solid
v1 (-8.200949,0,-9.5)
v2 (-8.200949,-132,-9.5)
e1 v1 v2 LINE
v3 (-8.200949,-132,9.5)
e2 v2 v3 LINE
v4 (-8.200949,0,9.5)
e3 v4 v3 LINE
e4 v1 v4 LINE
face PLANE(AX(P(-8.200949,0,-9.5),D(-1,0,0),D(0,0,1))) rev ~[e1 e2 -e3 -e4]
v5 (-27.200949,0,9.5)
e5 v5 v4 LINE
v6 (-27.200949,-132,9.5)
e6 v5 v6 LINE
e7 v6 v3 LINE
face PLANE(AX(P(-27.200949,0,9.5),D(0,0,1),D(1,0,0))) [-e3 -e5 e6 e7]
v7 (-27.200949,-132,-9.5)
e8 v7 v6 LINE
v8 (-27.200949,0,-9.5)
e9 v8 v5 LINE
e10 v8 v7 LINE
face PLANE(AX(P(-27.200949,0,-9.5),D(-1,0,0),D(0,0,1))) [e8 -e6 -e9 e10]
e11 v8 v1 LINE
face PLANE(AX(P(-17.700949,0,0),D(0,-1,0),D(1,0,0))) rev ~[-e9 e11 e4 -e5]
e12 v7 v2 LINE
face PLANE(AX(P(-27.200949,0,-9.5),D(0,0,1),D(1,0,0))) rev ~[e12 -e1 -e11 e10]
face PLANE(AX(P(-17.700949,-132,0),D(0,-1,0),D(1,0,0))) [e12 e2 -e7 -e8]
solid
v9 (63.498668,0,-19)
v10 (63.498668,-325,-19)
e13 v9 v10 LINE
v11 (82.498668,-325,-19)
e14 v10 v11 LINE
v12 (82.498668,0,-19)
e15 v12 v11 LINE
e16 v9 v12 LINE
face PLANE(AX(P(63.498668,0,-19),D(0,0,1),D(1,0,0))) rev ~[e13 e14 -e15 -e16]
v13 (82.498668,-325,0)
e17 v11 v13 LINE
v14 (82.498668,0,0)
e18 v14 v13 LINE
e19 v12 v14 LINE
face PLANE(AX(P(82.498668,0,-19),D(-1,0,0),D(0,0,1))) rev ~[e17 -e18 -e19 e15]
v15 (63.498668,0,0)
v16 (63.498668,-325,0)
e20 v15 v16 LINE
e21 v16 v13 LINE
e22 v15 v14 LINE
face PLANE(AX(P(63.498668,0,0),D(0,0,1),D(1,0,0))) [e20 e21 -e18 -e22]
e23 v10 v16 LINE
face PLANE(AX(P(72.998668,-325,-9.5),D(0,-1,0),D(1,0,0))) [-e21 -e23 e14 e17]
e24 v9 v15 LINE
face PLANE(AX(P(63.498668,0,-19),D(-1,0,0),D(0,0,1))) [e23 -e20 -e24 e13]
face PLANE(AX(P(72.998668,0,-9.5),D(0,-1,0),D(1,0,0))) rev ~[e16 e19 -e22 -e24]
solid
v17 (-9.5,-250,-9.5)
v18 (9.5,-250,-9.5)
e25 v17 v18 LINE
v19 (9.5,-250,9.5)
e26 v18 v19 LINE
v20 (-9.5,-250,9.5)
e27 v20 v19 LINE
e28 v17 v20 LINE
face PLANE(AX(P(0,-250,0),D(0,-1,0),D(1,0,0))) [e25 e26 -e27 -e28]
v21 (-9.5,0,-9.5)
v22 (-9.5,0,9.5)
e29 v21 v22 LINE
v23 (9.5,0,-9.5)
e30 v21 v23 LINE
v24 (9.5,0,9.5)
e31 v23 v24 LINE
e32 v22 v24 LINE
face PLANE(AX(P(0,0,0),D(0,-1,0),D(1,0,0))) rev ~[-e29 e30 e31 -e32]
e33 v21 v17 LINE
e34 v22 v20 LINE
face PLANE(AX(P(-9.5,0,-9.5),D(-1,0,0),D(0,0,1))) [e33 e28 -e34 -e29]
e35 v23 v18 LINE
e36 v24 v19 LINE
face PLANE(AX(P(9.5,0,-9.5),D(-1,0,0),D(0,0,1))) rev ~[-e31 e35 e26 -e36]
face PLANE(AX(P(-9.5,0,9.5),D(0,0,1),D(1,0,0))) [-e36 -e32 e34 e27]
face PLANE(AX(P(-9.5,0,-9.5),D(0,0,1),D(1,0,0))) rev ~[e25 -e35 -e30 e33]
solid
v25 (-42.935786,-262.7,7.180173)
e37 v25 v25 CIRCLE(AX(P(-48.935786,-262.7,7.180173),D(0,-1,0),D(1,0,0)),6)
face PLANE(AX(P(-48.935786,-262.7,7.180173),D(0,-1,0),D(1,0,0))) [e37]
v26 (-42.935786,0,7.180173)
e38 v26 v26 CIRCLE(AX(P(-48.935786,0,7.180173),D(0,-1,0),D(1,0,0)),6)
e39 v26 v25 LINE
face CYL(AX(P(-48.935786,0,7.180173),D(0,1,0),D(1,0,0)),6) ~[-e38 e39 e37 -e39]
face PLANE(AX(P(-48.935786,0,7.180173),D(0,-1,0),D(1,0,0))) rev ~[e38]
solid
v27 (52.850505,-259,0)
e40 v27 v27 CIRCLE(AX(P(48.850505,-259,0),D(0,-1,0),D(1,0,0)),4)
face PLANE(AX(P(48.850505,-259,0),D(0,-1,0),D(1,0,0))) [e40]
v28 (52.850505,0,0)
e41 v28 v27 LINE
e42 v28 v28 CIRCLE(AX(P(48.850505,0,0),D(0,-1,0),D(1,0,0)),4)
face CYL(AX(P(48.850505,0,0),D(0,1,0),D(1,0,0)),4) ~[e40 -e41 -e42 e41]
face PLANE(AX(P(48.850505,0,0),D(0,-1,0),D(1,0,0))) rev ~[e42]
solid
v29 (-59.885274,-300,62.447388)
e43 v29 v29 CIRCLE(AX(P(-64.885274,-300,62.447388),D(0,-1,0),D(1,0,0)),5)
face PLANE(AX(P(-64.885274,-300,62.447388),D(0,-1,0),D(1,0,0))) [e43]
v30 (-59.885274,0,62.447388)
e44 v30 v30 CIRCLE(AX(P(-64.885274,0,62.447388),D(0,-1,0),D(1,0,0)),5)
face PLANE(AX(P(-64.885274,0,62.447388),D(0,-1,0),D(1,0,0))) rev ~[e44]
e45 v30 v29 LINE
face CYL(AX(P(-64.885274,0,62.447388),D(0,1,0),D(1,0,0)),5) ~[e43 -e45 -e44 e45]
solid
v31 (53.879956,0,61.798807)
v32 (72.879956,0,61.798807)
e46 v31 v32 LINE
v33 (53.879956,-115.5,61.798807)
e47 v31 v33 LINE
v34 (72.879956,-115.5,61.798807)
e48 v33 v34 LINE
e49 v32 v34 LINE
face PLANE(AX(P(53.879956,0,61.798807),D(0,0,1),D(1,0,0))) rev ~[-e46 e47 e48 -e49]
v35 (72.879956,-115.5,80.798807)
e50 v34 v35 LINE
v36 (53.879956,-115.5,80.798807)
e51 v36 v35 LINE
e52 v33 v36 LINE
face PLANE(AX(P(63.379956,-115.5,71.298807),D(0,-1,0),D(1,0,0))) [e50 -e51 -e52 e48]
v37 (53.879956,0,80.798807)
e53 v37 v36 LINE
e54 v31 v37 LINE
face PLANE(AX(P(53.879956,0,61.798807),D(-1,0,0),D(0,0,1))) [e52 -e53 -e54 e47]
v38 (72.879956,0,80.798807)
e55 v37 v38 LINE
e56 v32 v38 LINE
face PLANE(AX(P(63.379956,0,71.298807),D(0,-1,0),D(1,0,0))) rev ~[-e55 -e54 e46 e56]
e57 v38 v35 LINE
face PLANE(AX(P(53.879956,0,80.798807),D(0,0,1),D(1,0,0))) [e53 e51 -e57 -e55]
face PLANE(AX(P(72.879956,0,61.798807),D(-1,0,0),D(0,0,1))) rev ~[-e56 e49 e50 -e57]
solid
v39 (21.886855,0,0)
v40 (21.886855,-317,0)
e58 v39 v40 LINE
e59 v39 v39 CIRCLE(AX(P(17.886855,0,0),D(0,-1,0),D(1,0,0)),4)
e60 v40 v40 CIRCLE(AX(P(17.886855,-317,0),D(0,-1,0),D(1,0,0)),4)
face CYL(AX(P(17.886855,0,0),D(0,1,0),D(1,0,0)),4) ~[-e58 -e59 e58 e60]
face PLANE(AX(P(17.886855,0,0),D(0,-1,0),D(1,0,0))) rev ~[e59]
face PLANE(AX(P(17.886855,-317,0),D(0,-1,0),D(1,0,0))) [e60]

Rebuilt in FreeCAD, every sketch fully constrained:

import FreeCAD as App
import Part
import Sketcher

V = App.Vector
Q = App.Units.Quantity


def add_polygon(sketch, points):
    """Adds a closed chain of lines whose ends are joined by coincident constraints."""
    first, n = sketch.GeometryCount, len(points)
    for a, b in zip(points, points[1:] + points[:1]):
        sketch.addGeometry(Part.LineSegment(App.Vector(*a, 0), App.Vector(*b, 0)), False)
    for i in range(n):
        sketch.addConstraint(Sketcher.Constraint("Coincident", first + i, 2, first + (i + 1) % n, 1))

doc = App.newDocument("Part")
body = doc.addObject("PartDesign::Body", "Body")

# Sketch on XZ plane
sketch1 = body.newObject("Sketcher::SketchObject", "Sketch")
sketch1.AttachmentSupport = (doc.getObject("XZ_Plane"), [""])
sketch1.MapMode = "FlatFace"
add_polygon(sketch1, [(-9.5, 9.5), (-9.5, -9.5), (9.5, -9.5), (9.5, 9.5)])  # lines 0-3
sketch1.addConstraint([
    Sketcher.Constraint("Vertical", 0),
    Sketcher.Constraint("Horizontal", 1),
    Sketcher.Constraint("Vertical", 2),
    Sketcher.Constraint("Horizontal", 3),
    Sketcher.Constraint("Symmetric", 0, 2, 2, 2, -1, 1),
    Sketcher.Constraint("Equal", 3, 0),
    Sketcher.Constraint("DistanceX", 1, 1, 1, 2, Q("19 mm")),
])
pad1 = body.newObject("PartDesign::Pad", "Pad")
pad1.Profile = sketch1
pad1.Length = 250
body2 = doc.addObject("PartDesign::Body", "Body001")

# Sketch on XZ plane
sketch2 = body2.newObject("Sketcher::SketchObject", "Sketch001")
sketch2.AttachmentSupport = (doc.getObject("XZ_Plane001"), [""])
sketch2.MapMode = "FlatFace"
add_polygon(sketch2, [(-27.200949, 9.5), (-27.200949, -9.5), (-8.200949, -9.5), (-8.200949, 9.5)])  # lines 0-3
sketch2.addConstraint([
    Sketcher.Constraint("Vertical", 0),
    Sketcher.Constraint("Horizontal", 1),
    Sketcher.Constraint("Vertical", 2),
    Sketcher.Constraint("Horizontal", 3),
    Sketcher.Constraint("Equal", 3, 0),
    Sketcher.Constraint("DistanceX", 1, 1, 1, 2, Q("19 mm")),
    Sketcher.Constraint("DistanceY", 0, 2, -1, 1, Q("9.5 mm")),
    Sketcher.Constraint("DistanceX", 0, 2, -1, 1, Q("27.200949 mm")),
])
pad2 = body2.newObject("PartDesign::Pad", "Pad001")
pad2.Profile = sketch2
pad2.Length = 132
body3 = doc.addObject("PartDesign::Body", "Body002")

# Sketch on XZ plane
sketch3 = body3.newObject("Sketcher::SketchObject", "Sketch002")
sketch3.AttachmentSupport = (doc.getObject("XZ_Plane002"), [""])
sketch3.MapMode = "FlatFace"
sketch3.addGeometry(Part.Circle(V(-48.935786, 7.180173, 0), V(0, 0, 1), 6), False)
sketch3.addConstraint([
    Sketcher.Constraint("Diameter", 0, Q("12 mm")),
    Sketcher.Constraint("DistanceX", 0, 3, -1, 1, Q("48.935786 mm")),
    Sketcher.Constraint("DistanceY", -1, 1, 0, 3, Q("7.180173 mm")),
])
pad3 = body3.newObject("PartDesign::Pad", "Pad002")
pad3.Profile = sketch3
pad3.Length = 262.7
body4 = doc.addObject("PartDesign::Body", "Body003")

# Sketch on XZ plane
sketch4 = body4.newObject("Sketcher::SketchObject", "Sketch003")
sketch4.AttachmentSupport = (doc.getObject("XZ_Plane003"), [""])
sketch4.MapMode = "FlatFace"
sketch4.addGeometry(Part.Circle(V(48.850505, 0, 0), V(0, 0, 1), 4), False)
sketch4.addConstraint([
    Sketcher.Constraint("PointOnObject", 0, 3, -1),
    Sketcher.Constraint("Diameter", 0, Q("8 mm")),
    Sketcher.Constraint("DistanceX", -1, 1, 0, 3, Q("48.850505 mm")),
])
pad4 = body4.newObject("PartDesign::Pad", "Pad003")
pad4.Profile = sketch4
pad4.Length = 259
body5 = doc.addObject("PartDesign::Body", "Body004")

# Sketch on XZ plane
sketch5 = body5.newObject("Sketcher::SketchObject", "Sketch004")
sketch5.AttachmentSupport = (doc.getObject("XZ_Plane004"), [""])
sketch5.MapMode = "FlatFace"
add_polygon(sketch5, [(63.498668, 0), (63.498668, -19), (82.498668, -19), (82.498668, 0)])  # lines 0-3
sketch5.addConstraint([
    Sketcher.Constraint("Vertical", 0),
    Sketcher.Constraint("Horizontal", 1),
    Sketcher.Constraint("Vertical", 2),
    Sketcher.Constraint("Horizontal", 3),
    Sketcher.Constraint("PointOnObject", 2, 2, -1),
    Sketcher.Constraint("Equal", 3, 0),
    Sketcher.Constraint("DistanceX", 1, 1, 1, 2, Q("19 mm")),
    Sketcher.Constraint("DistanceX", -1, 1, 0, 2, Q("63.498668 mm")),
])
pad5 = body5.newObject("PartDesign::Pad", "Pad004")
pad5.Profile = sketch5
pad5.Length = 325
body6 = doc.addObject("PartDesign::Body", "Body005")

# Sketch on XZ plane
sketch6 = body6.newObject("Sketcher::SketchObject", "Sketch005")
sketch6.AttachmentSupport = (doc.getObject("XZ_Plane005"), [""])
sketch6.MapMode = "FlatFace"
sketch6.addGeometry(Part.Circle(V(17.886855, 0, 0), V(0, 0, 1), 4), False)
sketch6.addConstraint([
    Sketcher.Constraint("PointOnObject", 0, 3, -1),
    Sketcher.Constraint("Diameter", 0, Q("8 mm")),
    Sketcher.Constraint("DistanceX", -1, 1, 0, 3, Q("17.886855 mm")),
])
pad6 = body6.newObject("PartDesign::Pad", "Pad005")
pad6.Profile = sketch6
pad6.Length = 317
body7 = doc.addObject("PartDesign::Body", "Body006")

# Sketch on XZ plane
sketch7 = body7.newObject("Sketcher::SketchObject", "Sketch006")
sketch7.AttachmentSupport = (doc.getObject("XZ_Plane006"), [""])
sketch7.MapMode = "FlatFace"
sketch7.addGeometry(Part.Circle(V(-64.885274, 62.447388, 0), V(0, 0, 1), 5), False)
sketch7.addConstraint([
    Sketcher.Constraint("Diameter", 0, Q("10 mm")),
    Sketcher.Constraint("DistanceX", 0, 3, -1, 1, Q("64.885274 mm")),
    Sketcher.Constraint("DistanceY", -1, 1, 0, 3, Q("62.447388 mm")),
])
pad7 = body7.newObject("PartDesign::Pad", "Pad006")
pad7.Profile = sketch7
pad7.Length = 300
body8 = doc.addObject("PartDesign::Body", "Body007")

# Sketch on XZ plane
sketch8 = body8.newObject("Sketcher::SketchObject", "Sketch007")
sketch8.AttachmentSupport = (doc.getObject("XZ_Plane007"), [""])
sketch8.MapMode = "FlatFace"
add_polygon(sketch8, [(53.879956, 80.798807), (53.879956, 61.798807), (72.879956, 61.798807), (72.879956, 80.798807)])  # lines 0-3
sketch8.addConstraint([
    Sketcher.Constraint("Vertical", 0),
    Sketcher.Constraint("Horizontal", 1),
    Sketcher.Constraint("Vertical", 2),
    Sketcher.Constraint("Horizontal", 3),
    Sketcher.Constraint("Equal", 3, 0),
    Sketcher.Constraint("DistanceX", 1, 1, 1, 2, Q("19 mm")),
    Sketcher.Constraint("DistanceX", -1, 1, 0, 2, Q("53.879956 mm")),
    Sketcher.Constraint("DistanceY", -1, 1, 0, 2, Q("61.798807 mm")),
])
pad8 = body8.newObject("PartDesign::Pad", "Pad007")
pad8.Profile = sketch8
pad8.Length = 115.5

doc.recompute()
